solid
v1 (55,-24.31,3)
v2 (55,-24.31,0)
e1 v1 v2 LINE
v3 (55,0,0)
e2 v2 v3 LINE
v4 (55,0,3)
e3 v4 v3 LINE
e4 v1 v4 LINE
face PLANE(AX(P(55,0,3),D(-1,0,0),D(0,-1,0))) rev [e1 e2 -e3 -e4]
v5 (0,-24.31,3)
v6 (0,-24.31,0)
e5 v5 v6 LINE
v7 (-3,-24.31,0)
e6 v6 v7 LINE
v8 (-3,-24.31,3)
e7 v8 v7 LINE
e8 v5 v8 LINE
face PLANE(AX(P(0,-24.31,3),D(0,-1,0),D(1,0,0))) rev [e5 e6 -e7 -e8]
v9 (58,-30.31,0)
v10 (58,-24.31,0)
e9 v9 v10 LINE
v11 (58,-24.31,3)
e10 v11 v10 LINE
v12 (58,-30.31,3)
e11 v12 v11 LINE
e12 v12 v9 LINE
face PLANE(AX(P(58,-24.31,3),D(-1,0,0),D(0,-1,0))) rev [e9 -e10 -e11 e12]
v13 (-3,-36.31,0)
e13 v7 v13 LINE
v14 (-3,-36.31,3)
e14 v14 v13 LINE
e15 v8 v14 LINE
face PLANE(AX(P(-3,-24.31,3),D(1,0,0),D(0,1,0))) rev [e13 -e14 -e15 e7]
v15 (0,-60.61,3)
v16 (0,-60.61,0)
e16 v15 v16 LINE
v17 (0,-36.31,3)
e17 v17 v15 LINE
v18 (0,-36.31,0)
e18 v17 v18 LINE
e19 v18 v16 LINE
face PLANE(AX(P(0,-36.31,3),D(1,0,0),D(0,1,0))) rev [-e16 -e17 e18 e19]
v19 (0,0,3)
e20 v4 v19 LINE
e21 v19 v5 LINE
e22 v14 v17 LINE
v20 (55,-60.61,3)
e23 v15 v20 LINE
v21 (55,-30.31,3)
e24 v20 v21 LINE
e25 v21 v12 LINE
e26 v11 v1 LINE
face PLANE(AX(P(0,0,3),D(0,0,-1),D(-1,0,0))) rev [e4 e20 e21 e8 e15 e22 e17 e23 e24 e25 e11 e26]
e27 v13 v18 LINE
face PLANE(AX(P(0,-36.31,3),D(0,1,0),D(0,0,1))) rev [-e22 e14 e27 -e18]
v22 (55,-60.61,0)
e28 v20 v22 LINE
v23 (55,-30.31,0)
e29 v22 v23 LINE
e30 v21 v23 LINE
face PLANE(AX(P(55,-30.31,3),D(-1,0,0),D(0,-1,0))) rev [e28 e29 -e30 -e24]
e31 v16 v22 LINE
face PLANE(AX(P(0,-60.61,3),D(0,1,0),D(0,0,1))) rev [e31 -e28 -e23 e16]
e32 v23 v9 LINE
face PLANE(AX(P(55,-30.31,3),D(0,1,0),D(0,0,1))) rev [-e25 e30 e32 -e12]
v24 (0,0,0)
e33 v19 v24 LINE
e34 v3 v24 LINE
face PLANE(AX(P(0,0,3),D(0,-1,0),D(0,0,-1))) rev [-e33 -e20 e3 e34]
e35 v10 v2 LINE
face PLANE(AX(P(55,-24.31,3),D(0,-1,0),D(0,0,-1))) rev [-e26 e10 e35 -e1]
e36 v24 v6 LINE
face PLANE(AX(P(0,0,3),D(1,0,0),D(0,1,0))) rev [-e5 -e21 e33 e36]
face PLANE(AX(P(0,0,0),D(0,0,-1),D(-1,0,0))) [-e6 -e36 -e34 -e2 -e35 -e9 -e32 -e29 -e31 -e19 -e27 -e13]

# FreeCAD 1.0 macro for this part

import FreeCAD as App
import Part
import Sketcher

V = App.Vector
Q = App.Units.Quantity


def add_polygon(sketch, points):
    """Adds a closed chain of lines whose ends are joined by coincident constraints."""
    first, n = sketch.GeometryCount, len(points)
    for a, b in zip(points, points[1:] + points[:1]):
        sketch.addGeometry(Part.LineSegment(App.Vector(*a, 0), App.Vector(*b, 0)), False)
    for i in range(n):
        sketch.addConstraint(Sketcher.Constraint("Coincident", first + i, 2, first + (i + 1) % n, 1))

doc = App.newDocument("Part")
body = doc.addObject("PartDesign::Body", "Body")

sketch1 = body.newObject("Sketcher::SketchObject", "Sketch")
sketch1.AttachmentSupport = (doc.getObject("XY_Plane"), [""])
sketch1.MapMode = "FlatFace"
add_polygon(sketch1, [(55, -60.61), (55, -30.31), (58, -30.31), (58, -24.31), (55, -24.31), (55, 0), (0, 0), (0, -24.31), (-3, -24.31), (-3, -36.31), (0, -36.31), (0, -60.61)])
sketch1.addConstraint(Sketcher.Constraint("Vertical", 0))
sketch1.addConstraint(Sketcher.Constraint("Horizontal", 1))
sketch1.addConstraint(Sketcher.Constraint("Vertical", 2))
sketch1.addConstraint(Sketcher.Constraint("Horizontal", 3))
sketch1.addConstraint(Sketcher.Constraint("Vertical", 4))
sketch1.addConstraint(Sketcher.Constraint("Horizontal", 5))
sketch1.addConstraint(Sketcher.Constraint("Vertical", 6))
sketch1.addConstraint(Sketcher.Constraint("Horizontal", 7))
sketch1.addConstraint(Sketcher.Constraint("Vertical", 8))
sketch1.addConstraint(Sketcher.Constraint("Horizontal", 9))
sketch1.addConstraint(Sketcher.Constraint("Vertical", 10))
sketch1.addConstraint(Sketcher.Constraint("Horizontal", 11))
sketch1.addConstraint(Sketcher.Constraint("Coincident", 5, 2, -1, 1))
sketch1.addConstraint(Sketcher.Constraint("PointOnObject", 9, 2, -2))
sketch1.addConstraint(Sketcher.Constraint("Horizontal", 3, 2, 6, 2))
sketch1.addConstraint(Sketcher.Constraint("Vertical", 0, 2, 3, 2))
sketch1.addConstraint(Sketcher.Constraint("Equal", 3, 7))
sketch1.addConstraint(Sketcher.Constraint("DistanceX", 1, 1, 1, 2, Q("3 mm")))
sketch1.addConstraint(Sketcher.Constraint("DistanceX", 5, 2, 5, 1, Q("55 mm")))
sketch1.addConstraint(Sketcher.Constraint("DistanceY", 2, 1, 2, 2, Q("6 mm")))
sketch1.addConstraint(Sketcher.Constraint("DistanceY", 8, 2, 8, 1, Q("12 mm")))
sketch1.addConstraint(Sketcher.Constraint("DistanceY", 0, 1, 0, 2, Q("30.3 mm")))
sketch1.addConstraint(Sketcher.Constraint("DistanceY", 4, 1, 4, 2, Q("24.31 mm")))
pad1 = body.newObject("PartDesign::Pad", "Pad")
pad1.Profile = sketch1
pad1.Length = 3

doc.recompute()
